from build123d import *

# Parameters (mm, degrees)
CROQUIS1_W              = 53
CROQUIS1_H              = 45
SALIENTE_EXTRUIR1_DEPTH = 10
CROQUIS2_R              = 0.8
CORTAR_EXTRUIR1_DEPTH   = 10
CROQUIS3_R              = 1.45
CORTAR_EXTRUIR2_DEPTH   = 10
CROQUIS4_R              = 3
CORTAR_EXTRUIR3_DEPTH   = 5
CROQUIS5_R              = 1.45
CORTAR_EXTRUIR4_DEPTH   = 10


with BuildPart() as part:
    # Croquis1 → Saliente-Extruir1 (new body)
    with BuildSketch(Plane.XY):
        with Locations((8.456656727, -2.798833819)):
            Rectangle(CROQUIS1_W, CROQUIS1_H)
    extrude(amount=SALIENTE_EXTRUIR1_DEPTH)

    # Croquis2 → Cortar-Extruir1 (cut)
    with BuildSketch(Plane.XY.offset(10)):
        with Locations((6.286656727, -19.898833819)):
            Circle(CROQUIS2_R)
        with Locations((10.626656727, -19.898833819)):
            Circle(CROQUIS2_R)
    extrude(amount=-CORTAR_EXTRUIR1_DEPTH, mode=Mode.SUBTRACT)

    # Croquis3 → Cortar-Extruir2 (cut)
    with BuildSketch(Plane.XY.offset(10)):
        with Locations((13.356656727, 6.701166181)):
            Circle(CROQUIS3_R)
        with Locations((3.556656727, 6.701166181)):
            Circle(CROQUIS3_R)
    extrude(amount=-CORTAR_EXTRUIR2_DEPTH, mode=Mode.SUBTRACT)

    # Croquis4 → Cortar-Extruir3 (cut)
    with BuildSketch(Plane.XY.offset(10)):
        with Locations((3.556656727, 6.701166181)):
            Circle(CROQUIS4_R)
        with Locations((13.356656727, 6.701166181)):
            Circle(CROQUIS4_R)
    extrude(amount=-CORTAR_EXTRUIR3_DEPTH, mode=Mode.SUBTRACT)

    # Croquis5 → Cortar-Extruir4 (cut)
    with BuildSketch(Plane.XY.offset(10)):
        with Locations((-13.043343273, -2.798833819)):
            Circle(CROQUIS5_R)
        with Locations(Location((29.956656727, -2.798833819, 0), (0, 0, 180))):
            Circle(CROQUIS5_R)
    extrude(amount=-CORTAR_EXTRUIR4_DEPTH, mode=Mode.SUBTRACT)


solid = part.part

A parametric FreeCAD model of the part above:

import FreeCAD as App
import Part
import Sketcher
from FreeCAD import Vector


def add_polygon(sketch, points):
    """Adds a closed chain of lines whose ends are joined by coincident constraints."""
    first, n = sketch.GeometryCount, len(points)
    for a, b in zip(points, points[1:] + points[:1]):
        sketch.addGeometry(Part.LineSegment(App.Vector(*a, 0), App.Vector(*b, 0)), False)
    for i in range(n):
        sketch.addConstraint(Sketcher.Constraint("Coincident", first + i, 2, first + (i + 1) % n, 1))

doc = App.newDocument("Part")
body = doc.addObject("PartDesign::Body", "Body")

# Sketch on XY plane
sketch1 = body.newObject("Sketcher::SketchObject", "Sketch")
sketch1.AttachmentSupport = (doc.getObject("XY_Plane"), [""])
sketch1.MapMode = "FlatFace"
add_polygon(sketch1, [(-18, 20), (-18, -25), (35, -25), (35, 20)])  # lines 0-3
sketch1.addConstraint(Sketcher.Constraint("Vertical", 0))
sketch1.addConstraint(Sketcher.Constraint("Horizontal", 1))
sketch1.addConstraint(Sketcher.Constraint("Vertical", 2))
sketch1.addConstraint(Sketcher.Constraint("Horizontal", 3))
sketch1.addConstraint(Sketcher.Constraint("DistanceX", 1, 1, 1, 2, 53.0))
sketch1.addConstraint(Sketcher.Constraint("DistanceY", 0, 2, 0, 1, 45.0))
sketch1.addConstraint(Sketcher.Constraint("DistanceX", 0, 2, -1, 1, 18.043343))
sketch1.addConstraint(Sketcher.Constraint("DistanceY", 0, 2, -1, 1, 25.298834))
pad1 = body.newObject("PartDesign::Pad", "Pad")
pad1.Profile = sketch1
pad1.Length = 10

# Sketch on XY plane
sketch2 = body.newObject("Sketcher::SketchObject", "Sketch001")
sketch2.AttachmentSupport = (doc.getObject("XY_Plane"), [""])
sketch2.MapMode = "FlatFace"
sketch2.AttachmentOffset = App.Placement(Vector(0, 0, 10), App.Rotation())
sketch2.addGeometry(Part.Circle(Vector(6.3, -19.9, 0), Vector(0, 0, 1), 0.8), False)
sketch2.addGeometry(Part.Circle(Vector(10.6, -19.9, 0), Vector(0, 0, 1), 0.8), False)
sketch2.addConstraint(Sketcher.Constraint("Equal", 0, 1))
sketch2.addConstraint(Sketcher.Constraint("Horizontal", 0, 3, 1, 3))
sketch2.addConstraint(Sketcher.Constraint("Diameter", 0, 1.6))
sketch2.addConstraint(Sketcher.Constraint("DistanceX", 0, 3, 1, 3, 4.34))
sketch2.addConstraint(Sketcher.Constraint("DistanceX", -1, 1, 0, 3, 6.286657))
sketch2.addConstraint(Sketcher.Constraint("DistanceY", 0, 3, -1, 1, 19.898834))
pocket1 = body.newObject("PartDesign::Pocket", "Pocket")
pocket1.Profile = sketch2
pocket1.Length = 10

# Sketch on XY plane
sketch3 = body.newObject("Sketcher::SketchObject", "Sketch002")
sketch3.AttachmentSupport = (doc.getObject("XY_Plane"), [""])
sketch3.MapMode = "FlatFace"
sketch3.AttachmentOffset = App.Placement(Vector(0, 0, 10), App.Rotation())
sketch3.addGeometry(Part.Circle(Vector(13.4, 6.7, 0), Vector(0, 0, 1), 1.4), False)
sketch3.addGeometry(Part.Circle(Vector(3.6, 6.7, 0), Vector(0, 0, 1), 1.4), False)
sketch3.addConstraint(Sketcher.Constraint("Equal", 0, 1))
sketch3.addConstraint(Sketcher.Constraint("Horizontal", 0, 3, 1, 3))
sketch3.addConstraint(Sketcher.Constraint("Diameter", 0, 2.9))
sketch3.addConstraint(Sketcher.Constraint("DistanceX", 1, 3, 0, 3, 9.8))
sketch3.addConstraint(Sketcher.Constraint("DistanceX", -1, 1, 0, 3, 13.356657))
sketch3.addConstraint(Sketcher.Constraint("DistanceY", -1, 1, 0, 3, 6.701166))
pocket2 = body.newObject("PartDesign::Pocket", "Pocket001")
pocket2.Profile = sketch3
pocket2.Length = 10

# Sketch on XY plane
sketch4 = body.newObject("Sketcher::SketchObject", "Sketch003")
sketch4.AttachmentSupport = (doc.getObject("XY_Plane"), [""])
sketch4.MapMode = "FlatFace"
sketch4.AttachmentOffset = App.Placement(Vector(0, 0, 10), App.Rotation())
sketch4.addGeometry(Part.Circle(Vector(3.6, 6.7, 0), Vector(0, 0, 1), 3), False)
sketch4.addGeometry(Part.Circle(Vector(13.4, 6.7, 0), Vector(0, 0, 1), 3), False)
sketch4.addConstraint(Sketcher.Constraint("Equal", 0, 1))
sketch4.addConstraint(Sketcher.Constraint("Horizontal", 0, 3, 1, 3))
sketch4.addConstraint(Sketcher.Constraint("Diameter", 0, 6.0))
sketch4.addConstraint(Sketcher.Constraint("DistanceX", 0, 3, 1, 3, 9.8))
sketch4.addConstraint(Sketcher.Constraint("DistanceX", -1, 1, 0, 3, 3.556657))
sketch4.addConstraint(Sketcher.Constraint("DistanceY", -1, 1, 0, 3, 6.701166))
pocket3 = body.newObject("PartDesign::Pocket", "Pocket002")
pocket3.Profile = sketch4
pocket3.Length = 5

# Sketch on XY plane
sketch5 = body.newObject("Sketcher::SketchObject", "Sketch004")
sketch5.AttachmentSupport = (doc.getObject("XY_Plane"), [""])
sketch5.MapMode = "FlatFace"
sketch5.AttachmentOffset = App.Placement(Vector(0, 0, 10), App.Rotation())
sketch5.addGeometry(Part.Circle(Vector(-13, -2.8, 0), Vector(0, 0, 1), 1.4), False)
sketch5.addGeometry(Part.Circle(Vector(30, -2.8, 0), Vector(0, 0, 1), 1.4), False)
sketch5.addConstraint(Sketcher.Constraint("Equal", 0, 1))
sketch5.addConstraint(Sketcher.Constraint("Horizontal", 0, 3, 1, 3))
sketch5.addConstraint(Sketcher.Constraint("Diameter", 0, 2.9))
sketch5.addConstraint(Sketcher.Constraint("DistanceX", 0, 3, 1, 3, 43.0))
sketch5.addConstraint(Sketcher.Constraint("DistanceX", 0, 3, -1, 1, 13.043343))
sketch5.addConstraint(Sketcher.Constraint("DistanceY", 0, 3, -1, 1, 2.798834))
pocket4 = body.newObject("PartDesign::Pocket", "Pocket003")
pocket4.Profile = sketch5
pocket4.Length = 10

doc.recompute()
